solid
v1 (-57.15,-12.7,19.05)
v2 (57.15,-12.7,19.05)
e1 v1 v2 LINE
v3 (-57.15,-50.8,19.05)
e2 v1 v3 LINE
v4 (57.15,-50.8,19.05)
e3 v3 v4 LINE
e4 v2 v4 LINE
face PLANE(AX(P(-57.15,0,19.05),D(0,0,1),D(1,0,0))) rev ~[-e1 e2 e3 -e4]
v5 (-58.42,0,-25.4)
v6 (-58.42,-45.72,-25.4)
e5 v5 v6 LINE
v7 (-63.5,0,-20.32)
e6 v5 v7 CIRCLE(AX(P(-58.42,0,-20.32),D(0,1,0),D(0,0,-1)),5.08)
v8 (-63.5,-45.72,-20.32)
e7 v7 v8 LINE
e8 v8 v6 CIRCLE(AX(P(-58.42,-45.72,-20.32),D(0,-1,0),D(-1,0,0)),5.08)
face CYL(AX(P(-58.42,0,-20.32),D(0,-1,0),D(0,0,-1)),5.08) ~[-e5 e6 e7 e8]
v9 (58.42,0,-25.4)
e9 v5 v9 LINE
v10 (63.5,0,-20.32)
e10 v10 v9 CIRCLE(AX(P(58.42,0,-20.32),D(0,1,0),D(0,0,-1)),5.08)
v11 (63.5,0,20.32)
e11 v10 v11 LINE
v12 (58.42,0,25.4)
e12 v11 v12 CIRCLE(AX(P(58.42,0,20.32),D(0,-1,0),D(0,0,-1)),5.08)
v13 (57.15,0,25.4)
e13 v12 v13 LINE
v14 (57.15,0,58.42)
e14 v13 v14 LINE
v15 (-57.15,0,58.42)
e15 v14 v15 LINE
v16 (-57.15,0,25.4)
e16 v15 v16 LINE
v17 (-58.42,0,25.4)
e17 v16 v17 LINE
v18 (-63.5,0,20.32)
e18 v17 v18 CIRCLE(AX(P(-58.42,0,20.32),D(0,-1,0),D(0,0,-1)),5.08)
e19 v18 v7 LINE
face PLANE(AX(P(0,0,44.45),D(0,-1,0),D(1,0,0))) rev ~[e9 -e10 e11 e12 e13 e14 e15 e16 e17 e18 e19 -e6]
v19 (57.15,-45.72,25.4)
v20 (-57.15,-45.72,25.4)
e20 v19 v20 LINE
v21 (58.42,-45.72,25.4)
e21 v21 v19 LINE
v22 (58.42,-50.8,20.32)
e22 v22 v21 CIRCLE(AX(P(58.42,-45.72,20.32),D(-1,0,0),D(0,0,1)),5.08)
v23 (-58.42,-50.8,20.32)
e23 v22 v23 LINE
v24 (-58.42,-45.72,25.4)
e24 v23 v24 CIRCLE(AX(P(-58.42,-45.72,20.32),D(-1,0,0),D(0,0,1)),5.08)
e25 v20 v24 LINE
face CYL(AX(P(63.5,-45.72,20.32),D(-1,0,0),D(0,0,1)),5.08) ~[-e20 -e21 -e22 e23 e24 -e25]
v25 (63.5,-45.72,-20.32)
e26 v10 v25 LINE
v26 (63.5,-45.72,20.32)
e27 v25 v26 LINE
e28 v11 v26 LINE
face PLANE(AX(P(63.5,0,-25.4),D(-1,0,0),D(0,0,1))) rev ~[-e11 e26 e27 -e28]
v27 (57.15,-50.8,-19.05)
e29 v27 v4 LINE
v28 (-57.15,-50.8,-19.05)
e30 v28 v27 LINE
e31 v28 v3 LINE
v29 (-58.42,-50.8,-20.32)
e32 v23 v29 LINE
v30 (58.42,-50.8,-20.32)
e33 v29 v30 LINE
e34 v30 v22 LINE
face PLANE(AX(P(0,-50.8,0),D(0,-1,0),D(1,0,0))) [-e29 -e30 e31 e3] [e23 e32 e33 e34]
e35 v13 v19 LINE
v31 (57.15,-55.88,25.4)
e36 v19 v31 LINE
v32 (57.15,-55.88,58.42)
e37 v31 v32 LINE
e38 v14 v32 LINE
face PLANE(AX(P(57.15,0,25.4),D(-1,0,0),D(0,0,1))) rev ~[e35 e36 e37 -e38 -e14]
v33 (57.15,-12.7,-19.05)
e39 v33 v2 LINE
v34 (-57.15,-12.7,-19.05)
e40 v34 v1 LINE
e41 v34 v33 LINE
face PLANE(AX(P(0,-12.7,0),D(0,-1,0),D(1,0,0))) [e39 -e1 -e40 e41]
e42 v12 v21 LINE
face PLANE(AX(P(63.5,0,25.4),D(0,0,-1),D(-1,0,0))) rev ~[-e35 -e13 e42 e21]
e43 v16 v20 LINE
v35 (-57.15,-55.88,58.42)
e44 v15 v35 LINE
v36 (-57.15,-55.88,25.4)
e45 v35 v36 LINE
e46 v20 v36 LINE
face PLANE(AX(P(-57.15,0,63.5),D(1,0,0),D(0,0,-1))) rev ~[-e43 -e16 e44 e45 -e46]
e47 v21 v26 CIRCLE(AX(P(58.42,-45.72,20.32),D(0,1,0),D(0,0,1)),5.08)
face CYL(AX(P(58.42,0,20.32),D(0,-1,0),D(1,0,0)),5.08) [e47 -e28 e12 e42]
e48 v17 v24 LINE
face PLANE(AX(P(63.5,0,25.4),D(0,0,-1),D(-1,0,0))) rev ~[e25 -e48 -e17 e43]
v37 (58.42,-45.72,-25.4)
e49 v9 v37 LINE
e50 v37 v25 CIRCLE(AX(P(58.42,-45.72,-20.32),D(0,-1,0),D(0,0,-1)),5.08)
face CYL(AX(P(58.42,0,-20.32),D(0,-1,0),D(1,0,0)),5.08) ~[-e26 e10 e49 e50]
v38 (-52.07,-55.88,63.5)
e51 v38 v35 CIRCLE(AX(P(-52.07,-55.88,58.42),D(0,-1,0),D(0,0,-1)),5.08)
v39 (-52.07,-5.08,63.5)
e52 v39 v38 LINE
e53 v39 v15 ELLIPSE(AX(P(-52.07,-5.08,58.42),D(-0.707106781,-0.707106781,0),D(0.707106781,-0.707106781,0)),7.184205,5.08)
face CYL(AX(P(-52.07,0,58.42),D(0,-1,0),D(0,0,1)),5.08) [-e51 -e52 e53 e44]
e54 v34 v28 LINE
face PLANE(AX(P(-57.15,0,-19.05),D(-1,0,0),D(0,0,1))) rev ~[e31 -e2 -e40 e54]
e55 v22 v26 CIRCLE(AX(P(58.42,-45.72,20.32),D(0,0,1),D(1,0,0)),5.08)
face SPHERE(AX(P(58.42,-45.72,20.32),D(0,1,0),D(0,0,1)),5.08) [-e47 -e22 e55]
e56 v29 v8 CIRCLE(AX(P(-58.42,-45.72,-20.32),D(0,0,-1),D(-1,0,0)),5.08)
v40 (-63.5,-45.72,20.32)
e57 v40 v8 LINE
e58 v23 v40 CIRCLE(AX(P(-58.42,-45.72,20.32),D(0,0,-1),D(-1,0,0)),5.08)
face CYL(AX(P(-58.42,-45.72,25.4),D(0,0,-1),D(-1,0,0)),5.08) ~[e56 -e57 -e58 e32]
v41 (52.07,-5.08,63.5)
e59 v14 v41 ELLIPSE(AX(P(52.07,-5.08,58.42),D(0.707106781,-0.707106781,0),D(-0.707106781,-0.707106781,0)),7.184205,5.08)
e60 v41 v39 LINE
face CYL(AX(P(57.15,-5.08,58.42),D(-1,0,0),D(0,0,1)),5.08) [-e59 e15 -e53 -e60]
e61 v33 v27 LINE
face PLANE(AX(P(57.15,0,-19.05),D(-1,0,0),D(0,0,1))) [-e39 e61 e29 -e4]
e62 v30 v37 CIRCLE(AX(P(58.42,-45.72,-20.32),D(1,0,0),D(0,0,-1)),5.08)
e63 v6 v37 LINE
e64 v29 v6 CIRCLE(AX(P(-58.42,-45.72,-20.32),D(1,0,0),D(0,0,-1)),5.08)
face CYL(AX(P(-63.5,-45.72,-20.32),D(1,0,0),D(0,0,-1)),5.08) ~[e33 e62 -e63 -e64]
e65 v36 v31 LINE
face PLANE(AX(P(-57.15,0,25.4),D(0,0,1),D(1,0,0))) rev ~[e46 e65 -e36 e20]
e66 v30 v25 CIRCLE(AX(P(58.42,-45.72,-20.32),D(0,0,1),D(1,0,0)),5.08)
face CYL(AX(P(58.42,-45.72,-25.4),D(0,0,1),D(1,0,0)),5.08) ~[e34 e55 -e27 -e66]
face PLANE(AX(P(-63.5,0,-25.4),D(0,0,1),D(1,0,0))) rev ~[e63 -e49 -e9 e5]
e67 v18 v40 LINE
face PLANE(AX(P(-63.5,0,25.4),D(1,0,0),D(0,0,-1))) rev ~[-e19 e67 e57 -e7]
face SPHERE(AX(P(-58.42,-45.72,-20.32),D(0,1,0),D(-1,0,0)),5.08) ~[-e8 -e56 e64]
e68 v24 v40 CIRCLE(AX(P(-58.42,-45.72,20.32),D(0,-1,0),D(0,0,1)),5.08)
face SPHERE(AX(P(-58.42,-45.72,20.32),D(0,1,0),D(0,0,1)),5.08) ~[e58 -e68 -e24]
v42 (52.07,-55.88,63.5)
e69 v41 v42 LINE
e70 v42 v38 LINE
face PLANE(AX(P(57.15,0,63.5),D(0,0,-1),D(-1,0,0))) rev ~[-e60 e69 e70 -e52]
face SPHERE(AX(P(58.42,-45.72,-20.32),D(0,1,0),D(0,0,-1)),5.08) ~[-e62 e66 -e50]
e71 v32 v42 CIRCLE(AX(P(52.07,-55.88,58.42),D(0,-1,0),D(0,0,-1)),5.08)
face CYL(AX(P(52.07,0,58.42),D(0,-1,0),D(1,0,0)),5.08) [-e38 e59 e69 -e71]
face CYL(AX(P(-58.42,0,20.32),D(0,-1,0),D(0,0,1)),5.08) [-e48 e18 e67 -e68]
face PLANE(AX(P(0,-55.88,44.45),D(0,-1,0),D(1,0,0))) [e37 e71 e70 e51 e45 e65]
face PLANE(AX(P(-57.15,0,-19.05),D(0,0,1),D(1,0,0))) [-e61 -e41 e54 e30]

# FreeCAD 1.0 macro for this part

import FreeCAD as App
import Part
import Sketcher

V = App.Vector
Q = App.Units.Quantity


def edges_at(feature, points):
    """Names of the edges that pass closest to the given points."""
    edges = feature.Shape.Edges
    near = lambda p: min(range(len(edges)), key=lambda i: edges[i].distToShape(Part.Vertex(*p))[0])
    return sorted({f"Edge{near(p) + 1}" for p in points})


def add_polygon(sketch, points):
    """Adds a closed chain of lines whose ends are joined by coincident constraints."""
    first, n = sketch.GeometryCount, len(points)
    for a, b in zip(points, points[1:] + points[:1]):
        sketch.addGeometry(Part.LineSegment(App.Vector(*a, 0), App.Vector(*b, 0)), False)
    for i in range(n):
        sketch.addConstraint(Sketcher.Constraint("Coincident", first + i, 2, first + (i + 1) % n, 1))

doc = App.newDocument("Part")
body = doc.addObject("PartDesign::Body", "Body")

sketch1 = body.newObject("Sketcher::SketchObject", "Sketch")
sketch1.AttachmentSupport = (doc.getObject("XZ_Plane"), [""])
sketch1.MapMode = "FlatFace"
add_polygon(sketch1, [(64, -25), (64, 25), (-64, 25), (-64, -25)])
add_polygon(sketch1, [(57, -19), (-57, -19), (-57, 19), (57, 19)])
sketch1.addConstraint([
    Sketcher.Constraint("Vertical", 0),
    Sketcher.Constraint("Horizontal", 1),
    Sketcher.Constraint("Vertical", 2),
    Sketcher.Constraint("Horizontal", 3),
    Sketcher.Constraint("Horizontal", 4),
    Sketcher.Constraint("Vertical", 5),
    Sketcher.Constraint("Horizontal", 6),
    Sketcher.Constraint("Vertical", 7),
    Sketcher.Constraint("Symmetric", 0, 2, 2, 2, -1, 1),
    Sketcher.Constraint("Symmetric", 4, 2, 6, 2, -1, 1),
    Sketcher.Constraint("DistanceX", 1, 2, 1, 1, Q("5 in")),
    Sketcher.Constraint("DistanceY", 0, 1, 0, 2, Q("2 in")),
    Sketcher.Constraint("DistanceX", 4, 2, 4, 1, Q("4.5 in")),
    Sketcher.Constraint("DistanceY", 5, 1, 5, 2, Q("1.5 in")),
])
pad1 = body.newObject("PartDesign::Pad", "Pad")
pad1.Profile = sketch1
pad1.Length = Q("2 in")

sketch2 = body.newObject("Sketcher::SketchObject", "Sketch001")
sketch2.AttachmentSupport = (doc.getObject("XZ_Plane"), [""])
sketch2.MapMode = "FlatFace"
add_polygon(sketch2, [(-57, 19), (-57, -19), (57, -19), (57, 19)])
sketch2.addConstraint([
    Sketcher.Constraint("Vertical", 0),
    Sketcher.Constraint("Horizontal", 1),
    Sketcher.Constraint("Vertical", 2),
    Sketcher.Constraint("Horizontal", 3),
    Sketcher.Constraint("Symmetric", 0, 2, 2, 2, -1, 1),
    Sketcher.Constraint("DistanceX", 1, 1, 1, 2, Q("4.5 in")),
    Sketcher.Constraint("DistanceY", 0, 2, 0, 1, Q("1.5 in")),
])
pad2 = body.newObject("PartDesign::Pad", "Pad001")
pad2.Profile = sketch2
pad2.Length = Q("0.5 in")
doc.recompute()

fillet = body.newObject("PartDesign::Fillet", "Fillet")
fillet.Base = (pad2, edges_at(pad2, [
    (-63.5, -25.4, 25.4),
    (-63.5, -25.4, -25.4),
    (63.5, -25.4, -25.4),
    (63.5, -25.4, 25.4),
    (0, -50.8, 25.4),
    (-63.5, -50.8, 0),
    (0, -50.8, -25.4),
    (63.5, -50.8, 0),
]))
fillet.Radius = Q("0.2 in")

sketch3 = body.newObject("Sketcher::SketchObject", "Sketch002")
sketch3.AttachmentSupport = (doc.getObject("XZ_Plane"), [""])
sketch3.MapMode = "FlatFace"
add_polygon(sketch3, [(57, 25), (57, 64), (-57, 64), (-57, 25)])
sketch3.addConstraint([
    Sketcher.Constraint("Vertical", 0),
    Sketcher.Constraint("Horizontal", 1),
    Sketcher.Constraint("Vertical", 2),
    Sketcher.Constraint("Horizontal", 3),
    Sketcher.Constraint("DistanceX", 1, 2, 1, 1, Q("4.5 in")),
    Sketcher.Constraint("DistanceY", 0, 1, 0, 2, Q("1.5 in")),
    Sketcher.Constraint("DistanceY", -1, 1, 2, 2, Q("1 in")),
    Sketcher.Constraint("DistanceX", -1, 1, 0, 2, Q("2.25 in")),
])
pad3 = body.newObject("PartDesign::Pad", "Pad002")
pad3.Profile = sketch3
pad3.Length = Q("2.2 in")
doc.recompute()

fillet2 = body.newObject("PartDesign::Fillet", "Fillet001")
fillet2.Base = (pad3, edges_at(pad3, [(-57.15, -27.94, 63.5), (57.15, -27.94, 63.5), (0, 0, 63.5)]))
fillet2.Radius = Q("0.2 in")

doc.recompute()
